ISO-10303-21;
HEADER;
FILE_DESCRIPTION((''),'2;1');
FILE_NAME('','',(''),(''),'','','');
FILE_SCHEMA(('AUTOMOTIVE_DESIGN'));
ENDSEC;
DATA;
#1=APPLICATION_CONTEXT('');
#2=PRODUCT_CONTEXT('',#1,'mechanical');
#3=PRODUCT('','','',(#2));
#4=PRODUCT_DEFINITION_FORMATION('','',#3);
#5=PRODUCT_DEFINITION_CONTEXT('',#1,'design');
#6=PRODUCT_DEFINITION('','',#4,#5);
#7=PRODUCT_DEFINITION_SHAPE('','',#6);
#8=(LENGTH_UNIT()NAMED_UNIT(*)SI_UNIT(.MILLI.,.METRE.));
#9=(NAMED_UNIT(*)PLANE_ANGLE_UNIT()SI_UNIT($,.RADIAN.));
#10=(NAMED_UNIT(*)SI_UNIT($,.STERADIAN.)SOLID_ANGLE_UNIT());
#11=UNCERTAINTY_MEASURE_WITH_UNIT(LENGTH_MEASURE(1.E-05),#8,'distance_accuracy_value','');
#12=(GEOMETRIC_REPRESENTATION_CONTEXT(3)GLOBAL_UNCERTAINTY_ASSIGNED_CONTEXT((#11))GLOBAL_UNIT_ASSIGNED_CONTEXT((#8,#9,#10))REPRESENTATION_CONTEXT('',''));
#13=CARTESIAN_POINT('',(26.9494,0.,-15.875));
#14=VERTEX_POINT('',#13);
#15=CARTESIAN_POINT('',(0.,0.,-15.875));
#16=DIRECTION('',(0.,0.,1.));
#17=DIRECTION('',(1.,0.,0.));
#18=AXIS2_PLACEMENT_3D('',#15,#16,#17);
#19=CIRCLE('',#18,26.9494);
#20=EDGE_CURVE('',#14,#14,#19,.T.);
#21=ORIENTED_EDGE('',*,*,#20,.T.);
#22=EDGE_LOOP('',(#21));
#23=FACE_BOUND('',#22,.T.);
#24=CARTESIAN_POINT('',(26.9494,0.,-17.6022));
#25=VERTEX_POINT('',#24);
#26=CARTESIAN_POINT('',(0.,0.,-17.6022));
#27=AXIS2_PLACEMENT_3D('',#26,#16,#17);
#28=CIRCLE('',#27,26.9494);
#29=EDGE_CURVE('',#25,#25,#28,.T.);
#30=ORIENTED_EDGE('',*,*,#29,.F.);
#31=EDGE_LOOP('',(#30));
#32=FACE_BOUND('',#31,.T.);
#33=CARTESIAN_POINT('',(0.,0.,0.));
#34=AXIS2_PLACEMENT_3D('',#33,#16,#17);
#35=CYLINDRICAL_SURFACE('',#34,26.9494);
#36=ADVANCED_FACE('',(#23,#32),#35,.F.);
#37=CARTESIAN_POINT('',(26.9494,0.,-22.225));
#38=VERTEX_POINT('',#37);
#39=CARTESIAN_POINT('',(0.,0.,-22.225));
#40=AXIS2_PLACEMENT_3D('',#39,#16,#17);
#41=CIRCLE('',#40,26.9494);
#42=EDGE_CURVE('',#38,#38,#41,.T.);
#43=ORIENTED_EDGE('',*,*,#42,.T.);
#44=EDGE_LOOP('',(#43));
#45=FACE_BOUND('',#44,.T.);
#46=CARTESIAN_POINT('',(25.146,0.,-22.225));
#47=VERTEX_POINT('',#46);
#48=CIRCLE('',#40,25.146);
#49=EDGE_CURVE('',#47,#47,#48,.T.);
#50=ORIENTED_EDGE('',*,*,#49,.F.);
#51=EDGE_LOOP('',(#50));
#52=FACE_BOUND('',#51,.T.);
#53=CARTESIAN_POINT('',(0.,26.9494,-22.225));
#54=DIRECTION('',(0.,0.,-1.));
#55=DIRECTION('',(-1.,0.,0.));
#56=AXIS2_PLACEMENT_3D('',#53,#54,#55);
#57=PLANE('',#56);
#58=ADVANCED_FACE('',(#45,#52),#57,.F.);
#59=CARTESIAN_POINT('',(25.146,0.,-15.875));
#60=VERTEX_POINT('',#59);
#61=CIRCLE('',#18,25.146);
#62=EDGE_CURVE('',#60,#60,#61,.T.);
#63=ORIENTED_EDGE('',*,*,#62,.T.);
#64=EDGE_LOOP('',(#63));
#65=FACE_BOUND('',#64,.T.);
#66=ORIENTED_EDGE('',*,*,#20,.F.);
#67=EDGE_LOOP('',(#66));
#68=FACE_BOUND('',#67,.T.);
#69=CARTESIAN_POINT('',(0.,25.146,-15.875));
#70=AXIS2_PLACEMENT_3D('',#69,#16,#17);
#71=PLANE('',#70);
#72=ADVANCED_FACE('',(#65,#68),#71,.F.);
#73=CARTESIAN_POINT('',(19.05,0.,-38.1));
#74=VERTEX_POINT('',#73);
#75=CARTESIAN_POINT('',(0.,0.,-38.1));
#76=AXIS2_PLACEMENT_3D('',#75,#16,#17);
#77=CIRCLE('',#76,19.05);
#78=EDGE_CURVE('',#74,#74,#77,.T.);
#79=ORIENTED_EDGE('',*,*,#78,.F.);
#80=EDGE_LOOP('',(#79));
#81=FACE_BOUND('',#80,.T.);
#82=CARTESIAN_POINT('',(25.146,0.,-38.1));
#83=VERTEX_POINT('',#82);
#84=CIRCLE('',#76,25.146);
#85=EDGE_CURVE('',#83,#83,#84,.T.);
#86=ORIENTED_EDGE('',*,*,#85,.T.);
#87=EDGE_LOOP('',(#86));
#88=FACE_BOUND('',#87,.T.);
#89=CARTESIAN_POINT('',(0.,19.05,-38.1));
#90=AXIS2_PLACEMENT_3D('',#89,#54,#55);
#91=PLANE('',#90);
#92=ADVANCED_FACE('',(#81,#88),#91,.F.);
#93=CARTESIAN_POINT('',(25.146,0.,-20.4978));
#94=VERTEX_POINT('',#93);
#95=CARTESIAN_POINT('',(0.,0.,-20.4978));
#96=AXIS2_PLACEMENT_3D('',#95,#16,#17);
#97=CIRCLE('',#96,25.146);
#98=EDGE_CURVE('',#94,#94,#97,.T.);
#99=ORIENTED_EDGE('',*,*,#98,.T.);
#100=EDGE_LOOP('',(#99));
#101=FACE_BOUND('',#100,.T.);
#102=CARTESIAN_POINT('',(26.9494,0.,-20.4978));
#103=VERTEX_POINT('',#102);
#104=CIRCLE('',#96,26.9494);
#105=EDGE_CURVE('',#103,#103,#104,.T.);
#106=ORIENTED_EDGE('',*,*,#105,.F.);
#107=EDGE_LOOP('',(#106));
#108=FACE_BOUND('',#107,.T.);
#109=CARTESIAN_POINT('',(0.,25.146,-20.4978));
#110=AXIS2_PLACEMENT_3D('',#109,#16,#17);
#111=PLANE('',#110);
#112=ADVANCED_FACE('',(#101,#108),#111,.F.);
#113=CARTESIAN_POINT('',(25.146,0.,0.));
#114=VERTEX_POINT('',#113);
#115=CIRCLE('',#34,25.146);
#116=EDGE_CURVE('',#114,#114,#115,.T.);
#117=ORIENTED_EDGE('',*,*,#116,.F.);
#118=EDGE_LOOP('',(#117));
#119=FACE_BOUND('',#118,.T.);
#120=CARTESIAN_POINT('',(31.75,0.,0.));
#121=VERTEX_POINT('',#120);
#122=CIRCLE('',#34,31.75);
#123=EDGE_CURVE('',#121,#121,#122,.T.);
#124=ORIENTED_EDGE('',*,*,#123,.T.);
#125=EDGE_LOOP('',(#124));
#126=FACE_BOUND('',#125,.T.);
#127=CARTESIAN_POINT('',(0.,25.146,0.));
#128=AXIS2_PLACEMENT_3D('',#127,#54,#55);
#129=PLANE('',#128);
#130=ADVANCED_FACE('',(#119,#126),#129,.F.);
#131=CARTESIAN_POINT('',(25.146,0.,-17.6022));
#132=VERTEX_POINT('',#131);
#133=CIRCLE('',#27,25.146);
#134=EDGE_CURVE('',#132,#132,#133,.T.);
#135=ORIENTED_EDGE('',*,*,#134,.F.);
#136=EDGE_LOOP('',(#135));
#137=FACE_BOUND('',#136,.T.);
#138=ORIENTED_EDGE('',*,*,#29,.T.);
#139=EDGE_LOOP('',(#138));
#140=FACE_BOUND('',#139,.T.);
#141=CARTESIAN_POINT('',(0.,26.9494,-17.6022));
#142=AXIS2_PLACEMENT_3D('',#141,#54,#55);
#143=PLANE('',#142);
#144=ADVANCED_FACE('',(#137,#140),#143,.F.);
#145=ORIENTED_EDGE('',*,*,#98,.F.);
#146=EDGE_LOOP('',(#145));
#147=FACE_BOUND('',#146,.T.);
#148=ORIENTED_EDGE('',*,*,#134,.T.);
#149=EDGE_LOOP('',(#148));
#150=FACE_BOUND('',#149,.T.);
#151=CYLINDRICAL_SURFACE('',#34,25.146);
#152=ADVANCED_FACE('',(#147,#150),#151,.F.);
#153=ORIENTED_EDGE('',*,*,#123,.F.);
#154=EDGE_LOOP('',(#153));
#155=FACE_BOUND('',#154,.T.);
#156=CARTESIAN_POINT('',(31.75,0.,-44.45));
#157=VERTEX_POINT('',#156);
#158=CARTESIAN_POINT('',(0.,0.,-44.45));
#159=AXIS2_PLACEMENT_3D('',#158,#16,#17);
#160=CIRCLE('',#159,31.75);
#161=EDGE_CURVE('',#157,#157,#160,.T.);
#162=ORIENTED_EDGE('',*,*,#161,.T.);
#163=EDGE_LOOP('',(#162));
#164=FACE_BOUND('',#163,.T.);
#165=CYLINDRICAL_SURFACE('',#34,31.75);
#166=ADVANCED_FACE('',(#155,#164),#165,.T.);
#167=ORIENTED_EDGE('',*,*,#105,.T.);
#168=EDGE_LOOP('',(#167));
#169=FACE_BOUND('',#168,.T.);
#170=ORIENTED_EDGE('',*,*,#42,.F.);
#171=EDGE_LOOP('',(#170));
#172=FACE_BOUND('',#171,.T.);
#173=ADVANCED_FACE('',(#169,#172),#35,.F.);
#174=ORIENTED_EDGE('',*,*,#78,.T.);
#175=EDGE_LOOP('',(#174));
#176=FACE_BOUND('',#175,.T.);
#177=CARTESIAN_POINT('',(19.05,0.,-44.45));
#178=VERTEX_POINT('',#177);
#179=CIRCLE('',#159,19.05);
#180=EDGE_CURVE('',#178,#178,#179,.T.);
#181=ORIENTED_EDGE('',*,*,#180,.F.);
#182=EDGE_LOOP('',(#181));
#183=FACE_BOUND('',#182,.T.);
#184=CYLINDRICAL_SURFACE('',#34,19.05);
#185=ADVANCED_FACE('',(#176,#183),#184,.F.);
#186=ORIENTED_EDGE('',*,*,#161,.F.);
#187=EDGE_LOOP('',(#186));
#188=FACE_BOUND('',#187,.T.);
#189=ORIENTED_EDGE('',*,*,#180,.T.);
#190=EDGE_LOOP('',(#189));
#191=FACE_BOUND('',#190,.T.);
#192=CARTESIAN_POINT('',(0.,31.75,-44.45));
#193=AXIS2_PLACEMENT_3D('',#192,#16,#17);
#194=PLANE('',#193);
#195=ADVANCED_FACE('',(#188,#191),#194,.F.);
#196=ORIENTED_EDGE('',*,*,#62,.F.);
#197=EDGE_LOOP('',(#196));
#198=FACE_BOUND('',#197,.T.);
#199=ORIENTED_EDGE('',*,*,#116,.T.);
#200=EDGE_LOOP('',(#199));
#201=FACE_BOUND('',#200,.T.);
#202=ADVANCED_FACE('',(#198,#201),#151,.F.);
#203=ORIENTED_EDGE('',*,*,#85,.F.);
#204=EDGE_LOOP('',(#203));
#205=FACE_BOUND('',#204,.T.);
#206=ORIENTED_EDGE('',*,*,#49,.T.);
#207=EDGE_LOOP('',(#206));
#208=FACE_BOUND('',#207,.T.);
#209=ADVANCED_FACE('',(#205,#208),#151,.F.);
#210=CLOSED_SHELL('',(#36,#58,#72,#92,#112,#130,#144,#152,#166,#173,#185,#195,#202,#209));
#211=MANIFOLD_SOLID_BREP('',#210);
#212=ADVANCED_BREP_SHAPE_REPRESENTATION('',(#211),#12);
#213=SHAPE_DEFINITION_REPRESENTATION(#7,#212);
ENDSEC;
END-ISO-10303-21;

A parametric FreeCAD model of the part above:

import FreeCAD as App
import Part
import Sketcher

V = App.Vector
Q = App.Units.Quantity


def add_polygon(sketch, points):
    """Adds a closed chain of lines whose ends are joined by coincident constraints."""
    first, n = sketch.GeometryCount, len(points)
    for a, b in zip(points, points[1:] + points[:1]):
        sketch.addGeometry(Part.LineSegment(App.Vector(*a, 0), App.Vector(*b, 0)), False)
    for i in range(n):
        sketch.addConstraint(Sketcher.Constraint("Coincident", first + i, 2, first + (i + 1) % n, 1))

doc = App.newDocument("Part")
body = doc.addObject("PartDesign::Body", "Body")

sketch1 = doc.addObject("Sketcher::SketchObject", "Sketch")
body.addObject(sketch1)
sketch1.AttachmentSupport = (doc.YZ_Plane, [""])
sketch1.MapMode = "FlatFace"
add_polygon(sketch1, [(31.8, 0), (25.1, 0), (25.1, -15.9), (26.9, -15.9), (26.9, -17.6), (25.1, -17.6), (25.1, -20.5), (26.9, -20.5), (26.9, -22.2), (25.1, -22.2), (25.1, -38.1), (19.1, -38.1), (19.1, -44.5), (31.8, -44.5)])
sketch1.addConstraint(Sketcher.Constraint("Horizontal", 0))
sketch1.addConstraint(Sketcher.Constraint("Vertical", 1))
sketch1.addConstraint(Sketcher.Constraint("Horizontal", 2))
sketch1.addConstraint(Sketcher.Constraint("Vertical", 3))
sketch1.addConstraint(Sketcher.Constraint("Horizontal", 4))
sketch1.addConstraint(Sketcher.Constraint("Vertical", 5))
sketch1.addConstraint(Sketcher.Constraint("Horizontal", 6))
sketch1.addConstraint(Sketcher.Constraint("Vertical", 7))
sketch1.addConstraint(Sketcher.Constraint("Horizontal", 8))
sketch1.addConstraint(Sketcher.Constraint("Vertical", 9))
sketch1.addConstraint(Sketcher.Constraint("Horizontal", 10))
sketch1.addConstraint(Sketcher.Constraint("Vertical", 11))
sketch1.addConstraint(Sketcher.Constraint("Horizontal", 12))
sketch1.addConstraint(Sketcher.Constraint("Vertical", 13))
sketch1.addConstraint(Sketcher.Constraint("PointOnObject", 0, 2, -1))
sketch1.addConstraint(Sketcher.Constraint("Vertical", 1, 2, 4, 2))
sketch1.addConstraint(Sketcher.Constraint("Vertical", 3, 2, 6, 2))
sketch1.addConstraint(Sketcher.Constraint("Vertical", 5, 2, 8, 2))
sketch1.addConstraint(Sketcher.Constraint("Equal", 3, 7))
sketch1.addConstraint(Sketcher.Constraint("Equal", 1, 9))
sketch1.addConstraint(Sketcher.Constraint("DistanceX", 12, 1, 12, 2, Q("0.5 in")))
sketch1.addConstraint(Sketcher.Constraint("DistanceX", 0, 2, 0, 1, Q("0.26 in")))
sketch1.addConstraint(Sketcher.Constraint("DistanceY", 11, 2, 11, 1, Q("0.25 in")))
sketch1.addConstraint(Sketcher.Constraint("DistanceY", 13, 1, 13, 2, Q("1.75 in")))
sketch1.addConstraint(Sketcher.Constraint("DistanceX", 2, 1, 2, 2, Q("0.071 in")))
sketch1.addConstraint(Sketcher.Constraint("DistanceY", 1, 2, 1, 1, Q("0.625 in")))
sketch1.addConstraint(Sketcher.Constraint("DistanceY", 3, 2, 3, 1, Q("0.068 in")))
sketch1.addConstraint(Sketcher.Constraint("DistanceX", -1, 1, 0, 2, Q("0.99 in")))
revolution = doc.addObject("PartDesign::Revolution", "Revolution")
body.addObject(revolution)
revolution.Profile = sketch1
revolution.ReferenceAxis = (sketch1, ["V_Axis"])
revolution.Angle = 360

doc.recompute()
